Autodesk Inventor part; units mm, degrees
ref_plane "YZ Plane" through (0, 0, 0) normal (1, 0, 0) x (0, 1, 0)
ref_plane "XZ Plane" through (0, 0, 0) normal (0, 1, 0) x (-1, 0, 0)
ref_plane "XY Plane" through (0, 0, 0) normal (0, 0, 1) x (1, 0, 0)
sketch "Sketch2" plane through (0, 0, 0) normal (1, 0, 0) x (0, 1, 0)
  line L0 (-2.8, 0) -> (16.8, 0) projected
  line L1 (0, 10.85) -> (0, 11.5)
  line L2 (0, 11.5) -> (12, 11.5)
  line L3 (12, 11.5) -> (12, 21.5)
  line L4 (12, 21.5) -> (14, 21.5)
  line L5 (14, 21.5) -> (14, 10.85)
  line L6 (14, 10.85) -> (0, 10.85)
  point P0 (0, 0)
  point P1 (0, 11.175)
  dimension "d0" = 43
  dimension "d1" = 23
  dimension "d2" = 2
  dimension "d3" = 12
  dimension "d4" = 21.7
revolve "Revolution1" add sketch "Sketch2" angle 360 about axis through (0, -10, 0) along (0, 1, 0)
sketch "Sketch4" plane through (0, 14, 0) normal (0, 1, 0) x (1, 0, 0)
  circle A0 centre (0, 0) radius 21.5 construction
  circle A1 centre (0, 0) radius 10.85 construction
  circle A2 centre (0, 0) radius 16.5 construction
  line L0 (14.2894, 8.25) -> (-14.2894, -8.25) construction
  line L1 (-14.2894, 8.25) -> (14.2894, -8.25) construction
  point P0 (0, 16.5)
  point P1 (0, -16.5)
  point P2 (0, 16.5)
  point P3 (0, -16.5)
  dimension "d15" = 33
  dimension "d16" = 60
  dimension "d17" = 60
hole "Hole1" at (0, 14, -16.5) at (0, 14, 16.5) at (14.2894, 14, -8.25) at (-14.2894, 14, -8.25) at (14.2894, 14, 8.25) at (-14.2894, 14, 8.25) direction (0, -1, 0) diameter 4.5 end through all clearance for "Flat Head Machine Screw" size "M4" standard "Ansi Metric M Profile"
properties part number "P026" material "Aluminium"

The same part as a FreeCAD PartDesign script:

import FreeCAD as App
import Part
import Sketcher

V = App.Vector
Q = App.Units.Quantity

doc = App.newDocument("Part")
body = doc.addObject("PartDesign::Body", "Body")

# Sketch on YZ plane
sketch1 = body.newObject("Sketcher::SketchObject", "Sketch")
sketch1.AttachmentSupport = (doc.getObject("YZ_Plane"), [""])
sketch1.MapMode = "FlatFace"
sketch1.addGeometry([
    Part.LineSegment(V(0, 11.5, 0), V(0, 10.85, 0)),  # 0
    Part.LineSegment(V(0, 10.85, 0), V(14, 10.85, 0)),  # 1
    Part.LineSegment(V(14, 10.85, 0), V(14, 21.5, 0)),  # 2
    Part.LineSegment(V(14, 21.5, 0), V(12, 21.5, 0)),  # 3
    Part.LineSegment(V(12, 21.5, 0), V(12, 11.5, 0)),  # 4
    Part.LineSegment(V(12, 11.5, 0), V(0, 11.5, 0)),  # 5
], False)
sketch1.addConstraint([
    Sketcher.Constraint("Coincident", 0, 2, 1, 1),
    Sketcher.Constraint("Coincident", 1, 2, 2, 1),
    Sketcher.Constraint("Coincident", 2, 2, 3, 1),
    Sketcher.Constraint("Coincident", 3, 2, 4, 1),
    Sketcher.Constraint("Coincident", 4, 2, 5, 1),
    Sketcher.Constraint("Coincident", 5, 2, 0, 1),
    Sketcher.Constraint("Vertical", 0),
    Sketcher.Constraint("Horizontal", 1),
    Sketcher.Constraint("Vertical", 2),
    Sketcher.Constraint("Horizontal", 3),
    Sketcher.Constraint("Vertical", 4),
    Sketcher.Constraint("Horizontal", 5),
    Sketcher.Constraint("PointOnObject", 0, 2, -2),
    Sketcher.Constraint("DistanceX", 3, 2, 3, 1, Q("2 mm")),
    Sketcher.Constraint("DistanceX", 5, 2, 5, 1, Q("12 mm")),
    Sketcher.Constraint("DistanceY", 4, 2, 4, 1, Q("10 mm")),
    Sketcher.Constraint("DistanceY", 0, 2, 0, 1, Q("0.65 mm")),
    Sketcher.Constraint("DistanceY", -1, 1, 2, 2, Q("21.5 mm")),
])
revolution = body.newObject("PartDesign::Revolution", "Revolution")
revolution.Profile = sketch1
revolution.ReferenceAxis = (sketch1, ["H_Axis"])
revolution.Angle = 360

# Sketch on XZ plane
sketch2 = body.newObject("Sketcher::SketchObject", "Sketch001")
sketch2.AttachmentSupport = (doc.getObject("XZ_Plane"), [""])
sketch2.MapMode = "FlatFace"
sketch2.AttachmentOffset = App.Placement(V(0, 0, -14), App.Rotation())
sketch2.addGeometry([
    Part.Circle(V(0, -16.5, 0), V(0, 0, 1), 2.25),  # 0
    Part.Circle(V(0, 16.5, 0), V(0, 0, 1), 2.25),  # 1
    Part.Circle(V(14.2894, -8.25, 0), V(0, 0, 1), 2.25),  # 2
    Part.Circle(V(-14.2894, -8.25, 0), V(0, 0, 1), 2.25),  # 3
    Part.Circle(V(14.2894, 8.25, 0), V(0, 0, 1), 2.25),  # 4
    Part.Circle(V(-14.2894, 8.25, 0), V(0, 0, 1), 2.25),  # 5
], False)
sketch2.addConstraint([
    Sketcher.Constraint("Equal", 0, 1),
    Sketcher.Constraint("Equal", 1, 2),
    Sketcher.Constraint("Equal", 2, 3),
    Sketcher.Constraint("Equal", 3, 4),
    Sketcher.Constraint("Equal", 4, 5),
    Sketcher.Constraint("Symmetric", 0, 3, 1, 3, -1, 1),
    Sketcher.Constraint("Symmetric", 3, 3, 4, 3, -1, 1),
    Sketcher.Constraint("Symmetric", 2, 3, 5, 3, -1, 1),
    Sketcher.Constraint("Symmetric", 2, 3, 3, 3, -2),
    Sketcher.Constraint("PointOnObject", 0, 3, -2),
    Sketcher.Constraint("Diameter", 0, Q("4.5 mm")),
    Sketcher.Constraint("DistanceY", 0, 3, 1, 3, Q("33 mm")),
    Sketcher.Constraint("DistanceY", 2, 3, 4, 3, Q("16.5 mm")),
    Sketcher.Constraint("DistanceX", -1, 1, 2, 3, Q("14.2894 mm")),
])
doc.recompute()
hole = body.newObject("PartDesign::Hole", "Hole")
hole.Profile = sketch2
hole.ThreadType = "None"
hole.Diameter = 4.5
hole.DepthType = "ThroughAll"
hole.Reversed = True

doc.recompute()
